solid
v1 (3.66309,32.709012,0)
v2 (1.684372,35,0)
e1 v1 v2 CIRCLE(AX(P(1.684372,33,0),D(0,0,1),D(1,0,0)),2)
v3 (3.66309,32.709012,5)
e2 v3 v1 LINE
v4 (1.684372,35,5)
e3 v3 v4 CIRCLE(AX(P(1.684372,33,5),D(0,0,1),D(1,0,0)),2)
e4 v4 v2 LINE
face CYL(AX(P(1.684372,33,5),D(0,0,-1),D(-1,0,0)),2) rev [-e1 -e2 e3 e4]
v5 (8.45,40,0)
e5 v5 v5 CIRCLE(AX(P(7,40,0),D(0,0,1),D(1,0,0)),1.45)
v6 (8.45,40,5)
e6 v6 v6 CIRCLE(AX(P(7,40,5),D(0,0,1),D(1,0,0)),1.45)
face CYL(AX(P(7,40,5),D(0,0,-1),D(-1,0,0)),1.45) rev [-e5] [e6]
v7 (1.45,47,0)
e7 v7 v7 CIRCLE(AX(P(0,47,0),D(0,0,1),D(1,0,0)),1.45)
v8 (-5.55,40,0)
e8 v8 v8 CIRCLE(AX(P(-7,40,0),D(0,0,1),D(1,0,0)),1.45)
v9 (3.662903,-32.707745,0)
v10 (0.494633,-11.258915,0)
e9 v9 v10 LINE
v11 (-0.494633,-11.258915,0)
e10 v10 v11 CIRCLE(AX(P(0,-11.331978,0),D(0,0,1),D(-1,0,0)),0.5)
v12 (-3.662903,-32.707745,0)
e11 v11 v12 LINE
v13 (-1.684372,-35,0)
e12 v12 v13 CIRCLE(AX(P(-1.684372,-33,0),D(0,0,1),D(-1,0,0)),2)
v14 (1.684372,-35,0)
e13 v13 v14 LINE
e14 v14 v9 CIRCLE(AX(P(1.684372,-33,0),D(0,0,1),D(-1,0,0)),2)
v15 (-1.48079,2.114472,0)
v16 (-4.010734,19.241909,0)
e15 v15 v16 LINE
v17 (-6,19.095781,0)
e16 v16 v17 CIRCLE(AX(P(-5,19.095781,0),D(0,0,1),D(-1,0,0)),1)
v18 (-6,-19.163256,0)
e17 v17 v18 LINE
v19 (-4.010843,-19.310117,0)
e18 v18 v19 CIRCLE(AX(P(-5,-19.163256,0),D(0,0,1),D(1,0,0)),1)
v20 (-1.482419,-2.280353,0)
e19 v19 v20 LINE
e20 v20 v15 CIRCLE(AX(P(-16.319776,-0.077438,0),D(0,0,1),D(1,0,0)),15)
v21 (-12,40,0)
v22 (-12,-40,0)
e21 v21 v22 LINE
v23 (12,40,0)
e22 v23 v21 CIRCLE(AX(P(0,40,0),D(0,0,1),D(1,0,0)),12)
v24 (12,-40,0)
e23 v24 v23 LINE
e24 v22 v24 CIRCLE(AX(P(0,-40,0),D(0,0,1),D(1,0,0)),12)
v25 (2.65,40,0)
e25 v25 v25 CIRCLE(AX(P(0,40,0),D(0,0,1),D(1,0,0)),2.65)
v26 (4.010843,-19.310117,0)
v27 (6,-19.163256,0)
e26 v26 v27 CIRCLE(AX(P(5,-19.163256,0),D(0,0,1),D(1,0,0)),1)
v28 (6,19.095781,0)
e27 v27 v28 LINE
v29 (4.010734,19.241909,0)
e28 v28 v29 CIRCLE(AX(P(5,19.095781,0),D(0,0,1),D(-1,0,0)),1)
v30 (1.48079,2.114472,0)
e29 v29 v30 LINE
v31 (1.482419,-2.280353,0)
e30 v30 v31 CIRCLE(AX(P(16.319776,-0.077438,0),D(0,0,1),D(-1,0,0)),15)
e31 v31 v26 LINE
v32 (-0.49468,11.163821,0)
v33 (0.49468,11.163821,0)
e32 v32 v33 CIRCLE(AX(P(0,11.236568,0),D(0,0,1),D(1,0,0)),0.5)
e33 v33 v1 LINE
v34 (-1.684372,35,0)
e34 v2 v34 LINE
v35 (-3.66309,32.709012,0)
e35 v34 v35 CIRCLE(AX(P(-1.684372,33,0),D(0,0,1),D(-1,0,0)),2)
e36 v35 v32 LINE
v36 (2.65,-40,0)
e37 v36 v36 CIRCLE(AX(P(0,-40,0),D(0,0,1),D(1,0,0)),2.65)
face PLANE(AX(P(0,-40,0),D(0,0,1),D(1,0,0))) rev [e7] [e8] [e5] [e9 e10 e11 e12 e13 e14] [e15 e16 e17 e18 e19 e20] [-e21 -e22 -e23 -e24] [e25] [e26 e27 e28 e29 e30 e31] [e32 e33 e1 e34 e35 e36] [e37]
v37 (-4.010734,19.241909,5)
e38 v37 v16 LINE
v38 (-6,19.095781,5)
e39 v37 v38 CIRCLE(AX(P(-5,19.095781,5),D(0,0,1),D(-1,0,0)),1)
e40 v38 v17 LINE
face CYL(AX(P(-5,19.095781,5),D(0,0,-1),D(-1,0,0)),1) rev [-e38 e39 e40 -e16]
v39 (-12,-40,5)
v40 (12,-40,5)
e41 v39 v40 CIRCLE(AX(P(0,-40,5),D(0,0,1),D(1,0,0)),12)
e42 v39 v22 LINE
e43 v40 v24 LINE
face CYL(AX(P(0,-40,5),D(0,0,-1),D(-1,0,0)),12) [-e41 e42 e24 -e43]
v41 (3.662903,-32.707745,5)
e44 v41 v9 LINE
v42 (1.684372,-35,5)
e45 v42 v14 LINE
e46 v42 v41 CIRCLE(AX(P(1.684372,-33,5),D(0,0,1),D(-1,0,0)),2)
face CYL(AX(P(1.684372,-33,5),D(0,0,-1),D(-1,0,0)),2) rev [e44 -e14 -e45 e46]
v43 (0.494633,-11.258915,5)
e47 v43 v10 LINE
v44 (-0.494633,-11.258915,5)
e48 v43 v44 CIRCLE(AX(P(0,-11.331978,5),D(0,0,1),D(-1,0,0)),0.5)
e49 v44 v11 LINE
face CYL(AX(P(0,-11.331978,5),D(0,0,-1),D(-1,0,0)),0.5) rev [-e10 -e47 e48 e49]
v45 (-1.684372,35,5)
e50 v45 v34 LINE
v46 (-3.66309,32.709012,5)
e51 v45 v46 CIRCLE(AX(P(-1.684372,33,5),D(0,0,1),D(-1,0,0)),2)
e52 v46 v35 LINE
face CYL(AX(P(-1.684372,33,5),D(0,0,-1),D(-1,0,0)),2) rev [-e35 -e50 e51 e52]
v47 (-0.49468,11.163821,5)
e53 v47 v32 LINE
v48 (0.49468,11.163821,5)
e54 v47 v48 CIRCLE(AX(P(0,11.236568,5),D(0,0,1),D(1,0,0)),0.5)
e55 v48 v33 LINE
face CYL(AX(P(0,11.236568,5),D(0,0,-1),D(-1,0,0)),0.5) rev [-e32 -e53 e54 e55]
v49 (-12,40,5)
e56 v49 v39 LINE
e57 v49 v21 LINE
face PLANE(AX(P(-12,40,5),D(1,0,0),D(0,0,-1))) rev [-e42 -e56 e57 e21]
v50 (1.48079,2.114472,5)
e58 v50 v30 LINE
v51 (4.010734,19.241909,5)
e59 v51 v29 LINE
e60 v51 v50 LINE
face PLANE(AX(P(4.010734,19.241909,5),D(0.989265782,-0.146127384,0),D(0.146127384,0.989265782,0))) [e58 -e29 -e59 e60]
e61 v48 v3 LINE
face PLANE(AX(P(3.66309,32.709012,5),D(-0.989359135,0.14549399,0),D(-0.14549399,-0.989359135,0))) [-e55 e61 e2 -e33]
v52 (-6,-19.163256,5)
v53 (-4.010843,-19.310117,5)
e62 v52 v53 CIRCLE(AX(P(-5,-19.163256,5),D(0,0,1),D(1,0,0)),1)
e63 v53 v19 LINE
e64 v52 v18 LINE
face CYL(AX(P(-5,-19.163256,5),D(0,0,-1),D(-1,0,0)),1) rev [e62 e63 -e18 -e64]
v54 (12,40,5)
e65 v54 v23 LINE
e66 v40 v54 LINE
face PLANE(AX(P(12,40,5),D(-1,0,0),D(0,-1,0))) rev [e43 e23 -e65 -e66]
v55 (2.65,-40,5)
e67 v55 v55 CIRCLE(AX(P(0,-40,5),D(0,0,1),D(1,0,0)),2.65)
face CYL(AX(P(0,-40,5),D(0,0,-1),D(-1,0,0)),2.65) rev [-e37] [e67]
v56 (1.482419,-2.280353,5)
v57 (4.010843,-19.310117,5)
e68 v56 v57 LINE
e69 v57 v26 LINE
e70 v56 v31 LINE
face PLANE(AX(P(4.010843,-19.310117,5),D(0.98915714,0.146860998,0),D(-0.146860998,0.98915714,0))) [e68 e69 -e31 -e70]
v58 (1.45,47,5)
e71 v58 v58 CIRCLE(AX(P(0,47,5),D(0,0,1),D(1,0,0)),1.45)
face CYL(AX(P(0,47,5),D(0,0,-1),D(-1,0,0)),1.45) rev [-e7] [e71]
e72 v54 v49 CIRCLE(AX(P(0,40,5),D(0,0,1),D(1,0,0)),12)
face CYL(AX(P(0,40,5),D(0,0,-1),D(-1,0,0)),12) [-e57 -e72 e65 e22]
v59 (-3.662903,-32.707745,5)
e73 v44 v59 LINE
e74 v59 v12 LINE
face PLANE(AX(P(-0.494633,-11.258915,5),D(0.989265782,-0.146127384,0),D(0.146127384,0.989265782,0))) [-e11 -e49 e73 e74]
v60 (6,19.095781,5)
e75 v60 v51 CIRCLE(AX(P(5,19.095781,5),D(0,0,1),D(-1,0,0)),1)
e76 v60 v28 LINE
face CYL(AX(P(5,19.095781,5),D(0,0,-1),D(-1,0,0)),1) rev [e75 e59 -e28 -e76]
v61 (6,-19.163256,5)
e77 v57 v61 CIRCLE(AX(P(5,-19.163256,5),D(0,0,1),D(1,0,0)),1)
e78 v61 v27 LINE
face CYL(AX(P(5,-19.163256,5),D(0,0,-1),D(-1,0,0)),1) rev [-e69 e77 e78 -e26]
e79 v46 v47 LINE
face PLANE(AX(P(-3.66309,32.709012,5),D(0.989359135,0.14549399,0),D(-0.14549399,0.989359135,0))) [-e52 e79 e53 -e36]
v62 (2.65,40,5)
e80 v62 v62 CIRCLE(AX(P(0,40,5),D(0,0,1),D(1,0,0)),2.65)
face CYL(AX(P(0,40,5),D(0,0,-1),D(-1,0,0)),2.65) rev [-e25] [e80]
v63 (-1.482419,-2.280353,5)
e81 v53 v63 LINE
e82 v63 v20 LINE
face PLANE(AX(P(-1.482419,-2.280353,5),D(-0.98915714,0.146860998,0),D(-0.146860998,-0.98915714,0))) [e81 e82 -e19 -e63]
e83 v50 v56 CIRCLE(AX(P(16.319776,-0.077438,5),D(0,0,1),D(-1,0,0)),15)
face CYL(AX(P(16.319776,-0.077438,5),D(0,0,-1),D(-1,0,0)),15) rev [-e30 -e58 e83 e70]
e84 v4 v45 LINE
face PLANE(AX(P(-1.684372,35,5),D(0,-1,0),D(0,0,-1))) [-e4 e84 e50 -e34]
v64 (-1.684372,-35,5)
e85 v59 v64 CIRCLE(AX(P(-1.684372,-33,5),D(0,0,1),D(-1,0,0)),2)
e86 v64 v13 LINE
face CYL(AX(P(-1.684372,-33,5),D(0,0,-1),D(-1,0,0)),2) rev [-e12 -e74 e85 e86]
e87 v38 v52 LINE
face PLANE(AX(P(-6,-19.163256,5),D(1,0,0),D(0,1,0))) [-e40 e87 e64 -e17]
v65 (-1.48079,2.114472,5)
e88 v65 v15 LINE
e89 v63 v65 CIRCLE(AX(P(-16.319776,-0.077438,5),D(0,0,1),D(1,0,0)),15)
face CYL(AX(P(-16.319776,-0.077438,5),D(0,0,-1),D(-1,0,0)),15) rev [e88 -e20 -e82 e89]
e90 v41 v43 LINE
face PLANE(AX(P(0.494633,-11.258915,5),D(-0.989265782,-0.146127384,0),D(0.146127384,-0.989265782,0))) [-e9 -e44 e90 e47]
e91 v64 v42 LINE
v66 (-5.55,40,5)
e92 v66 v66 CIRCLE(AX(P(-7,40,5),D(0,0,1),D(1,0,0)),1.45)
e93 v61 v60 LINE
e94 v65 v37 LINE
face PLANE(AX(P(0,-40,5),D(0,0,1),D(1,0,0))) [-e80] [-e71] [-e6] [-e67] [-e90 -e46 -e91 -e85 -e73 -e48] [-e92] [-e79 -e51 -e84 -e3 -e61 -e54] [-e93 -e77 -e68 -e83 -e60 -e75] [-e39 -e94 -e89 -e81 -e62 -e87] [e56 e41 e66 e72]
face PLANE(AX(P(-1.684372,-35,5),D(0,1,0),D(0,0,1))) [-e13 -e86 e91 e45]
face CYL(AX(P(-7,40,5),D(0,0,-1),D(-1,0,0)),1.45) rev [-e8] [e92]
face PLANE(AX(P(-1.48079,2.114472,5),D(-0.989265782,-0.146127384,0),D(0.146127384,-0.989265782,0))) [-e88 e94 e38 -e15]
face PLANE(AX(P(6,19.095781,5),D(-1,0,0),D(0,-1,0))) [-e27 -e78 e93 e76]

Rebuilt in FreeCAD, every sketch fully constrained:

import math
import FreeCAD as App
import Part
import Sketcher
from FreeCAD import Vector

doc = App.newDocument("Part")
body = doc.addObject("PartDesign::Body", "Body")

# Sketch on XY plane
sketch1 = body.newObject("Sketcher::SketchObject", "Sketch")
sketch1.AttachmentSupport = (doc.getObject("XY_Plane"), [""])
sketch1.MapMode = "FlatFace"
sketch1.addGeometry([
    Part.LineSegment(Vector(-12, 40, 0), Vector(-12, -40, 0)),  # 0
    Part.ArcOfCircle(Part.Circle(Vector(0, -40, 0), Vector(0, 0, 1), 12), math.radians(180), math.radians(360)),  # 1
    Part.LineSegment(Vector(12, -40, 0), Vector(12, 40, 0)),  # 2
    Part.ArcOfCircle(Part.Circle(Vector(0, 40, 0), Vector(0, 0, 1), 12), math.radians(0), math.radians(180)),  # 3
    Part.ArcOfCircle(Part.Circle(Vector(-5, -19.2, 0), Vector(0, 0, 1), 1), math.radians(180), math.radians(352)),  # 4
    Part.LineSegment(Vector(-6, -19.2, 0), Vector(-6, 19.1, 0)),  # 5
    Part.ArcOfCircle(Part.Circle(Vector(-5, 19.1, 0), Vector(0, 0, 1), 1), math.radians(8), math.radians(180)),  # 6
    Part.LineSegment(Vector(-4, 19.2, 0), Vector(-1.5, 2.1, 0)),  # 7
    Part.ArcOfCircle(Part.Circle(Vector(-16.3, -0.1, 0), Vector(0, 0, 1), 15), math.radians(-8.45), math.radians(8.4)),  # 8
    Part.LineSegment(Vector(-1.5, -2.3, 0), Vector(-4, -19.3, 0)),  # 9
    Part.Circle(Vector(0, -40, 0), Vector(0, 0, 1), 2.6),  # 10
    Part.LineSegment(Vector(1.7, -35, 0), Vector(-1.7, -35, 0)),  # 11
    Part.ArcOfCircle(Part.Circle(Vector(-1.7, -33, 0), Vector(0, 0, 1), 2), math.radians(172), math.radians(270)),  # 12
    Part.LineSegment(Vector(-3.7, -32.7, 0), Vector(-0.5, -11.3, 0)),  # 13
    Part.ArcOfCircle(Part.Circle(Vector(0, -11.3, 0), Vector(0, 0, 1), 0.5), math.radians(8), math.radians(172)),  # 14
    Part.LineSegment(Vector(0.5, -11.3, 0), Vector(3.7, -32.7, 0)),  # 15
    Part.ArcOfCircle(Part.Circle(Vector(1.7, -33, 0), Vector(0, 0, 1), 2), math.radians(-90), math.radians(8)),  # 16
    Part.ArcOfCircle(Part.Circle(Vector(5, 19.1, 0), Vector(0, 0, 1), 1), math.radians(0), math.radians(172)),  # 17
    Part.LineSegment(Vector(6, 19.1, 0), Vector(6, -19.2, 0)),  # 18
    Part.ArcOfCircle(Part.Circle(Vector(5, -19.2, 0), Vector(0, 0, 1), 1), math.radians(-172), math.radians(0)),  # 19
    Part.LineSegment(Vector(4, -19.3, 0), Vector(1.5, -2.3, 0)),  # 20
    Part.ArcOfCircle(Part.Circle(Vector(16.3, -0.1, 0), Vector(0, 0, 1), 15), math.radians(171.6), math.radians(188.45)),  # 21
    Part.LineSegment(Vector(1.5, 2.1, 0), Vector(4, 19.2, 0)),  # 22
    Part.Circle(Vector(-7, 40, 0), Vector(0, 0, 1), 1.4),  # 23
    Part.ArcOfCircle(Part.Circle(Vector(-1.7, 33, 0), Vector(0, 0, 1), 2), math.radians(90), math.radians(188)),  # 24
    Part.LineSegment(Vector(-1.7, 35, 0), Vector(1.7, 35, 0)),  # 25
    Part.ArcOfCircle(Part.Circle(Vector(1.7, 33, 0), Vector(0, 0, 1), 2), math.radians(-8), math.radians(90)),  # 26
    Part.LineSegment(Vector(3.7, 32.7, 0), Vector(0.5, 11.2, 0)),  # 27
    Part.ArcOfCircle(Part.Circle(Vector(0, 11.2, 0), Vector(0, 0, 1), 0.5), math.radians(-172), math.radians(-8)),  # 28
    Part.LineSegment(Vector(-0.5, 11.2, 0), Vector(-3.7, 32.7, 0)),  # 29
    Part.Circle(Vector(0, 40, 0), Vector(0, 0, 1), 2.6),  # 30
    Part.Circle(Vector(0, 47, 0), Vector(0, 0, 1), 1.4),  # 31
    Part.Circle(Vector(7, 40, 0), Vector(0, 0, 1), 1.4),  # 32
], False)
sketch1.addConstraint([
    Sketcher.Constraint("Tangent", 0, 2, 1, 1),
    Sketcher.Constraint("Tangent", 1, 2, 2, 1),
    Sketcher.Constraint("Tangent", 2, 2, 3, 1),
    Sketcher.Constraint("Tangent", 3, 2, 0, 1),
    Sketcher.Constraint("Tangent", 4, 1, 5, 1),
    Sketcher.Constraint("Tangent", 5, 2, 6, 2),
    Sketcher.Constraint("Tangent", 6, 1, 7, 1),
    Sketcher.Constraint("Tangent", 7, 2, 8, 2),
    Sketcher.Constraint("Tangent", 8, 1, 9, 1),
    Sketcher.Constraint("Tangent", 9, 2, 4, 2),
    Sketcher.Constraint("Tangent", 11, 2, 12, 2),
    Sketcher.Constraint("Tangent", 12, 1, 13, 1),
    Sketcher.Constraint("Tangent", 13, 2, 14, 2),
    Sketcher.Constraint("Tangent", 14, 1, 15, 1),
    Sketcher.Constraint("Tangent", 15, 2, 16, 2),
    Sketcher.Constraint("Tangent", 16, 1, 11, 1),
    Sketcher.Constraint("Tangent", 17, 1, 18, 1),
    Sketcher.Constraint("Tangent", 18, 2, 19, 2),
    Sketcher.Constraint("Tangent", 19, 1, 20, 1),
    Sketcher.Constraint("Tangent", 20, 2, 21, 2),
    Sketcher.Constraint("Tangent", 21, 1, 22, 1),
    Sketcher.Constraint("Tangent", 22, 2, 17, 2),
    Sketcher.Constraint("Tangent", 24, 1, 25, 1),
    Sketcher.Constraint("Tangent", 25, 2, 26, 2),
    Sketcher.Constraint("Tangent", 26, 1, 27, 1),
    Sketcher.Constraint("Tangent", 27, 2, 28, 2),
    Sketcher.Constraint("Tangent", 28, 1, 29, 1),
    Sketcher.Constraint("Tangent", 29, 2, 24, 2),
    Sketcher.Constraint("Vertical", 0),
    Sketcher.Constraint("Vertical", 2),
    Sketcher.Constraint("Vertical", 5),
    Sketcher.Constraint("Horizontal", 11),
    Sketcher.Constraint("Vertical", 18),
    Sketcher.Constraint("Horizontal", 25),
    Sketcher.Constraint("Coincident", 10, 3, 1, 3),
    Sketcher.Constraint("Coincident", 30, 3, 3, 3),
    Sketcher.Constraint("Equal", 4, 6),
    Sketcher.Constraint("Equal", 12, 16),
    Sketcher.Constraint("Equal", 6, 17),
    Sketcher.Constraint("Equal", 17, 19),
    Sketcher.Constraint("Equal", 8, 21),
    Sketcher.Constraint("Equal", 16, 24),
    Sketcher.Constraint("Equal", 24, 26),
    Sketcher.Constraint("Equal", 14, 28),
    Sketcher.Constraint("Equal", 10, 30),
    Sketcher.Constraint("Equal", 23, 31),
    Sketcher.Constraint("Equal", 31, 32),
    Sketcher.Constraint("Symmetric", 1, 3, 3, 3, -1, 1),
    Sketcher.Constraint("Symmetric", 16, 3, 24, 3, -1, 1),
    Sketcher.Constraint("Symmetric", 6, 3, 17, 3, -2),
    Sketcher.Constraint("Symmetric", 8, 3, 21, 3, -2),
    Sketcher.Constraint("Symmetric", 23, 3, 32, 3, -2),
    Sketcher.Constraint("Symmetric", 13, 2, 14, 1, -2),
    Sketcher.Constraint("Symmetric", 27, 2, 28, 1, -2),
    Sketcher.Constraint("PointOnObject", 31, 3, -2),
    Sketcher.Constraint("Parallel", 7, 15),
    Sketcher.Constraint("Horizontal", 4, 3, 19, 3),
    Sketcher.Constraint("Horizontal", 3, 3, 23, 3),
    Sketcher.Constraint("Radius", 1, 12.0),
    Sketcher.Constraint("Radius", 4, 1.0),
    Sketcher.Constraint("Radius", 8, 15.0),
    Sketcher.Constraint("Radius", 12, 2.0),
    Sketcher.Constraint("Diameter", 10, 5.3),
    Sketcher.Constraint("Diameter", 23, 2.9),
    Sketcher.Constraint("Radius", 14, 0.5),
    Sketcher.Constraint("DistanceY", 0, 2, 0, 1, 80.0),
    Sketcher.Constraint("DistanceX", 4, 3, -1, 1, 5.0),
    Sketcher.Constraint("DistanceY", 12, 3, -1, 1, 33.0),
    Sketcher.Constraint("DistanceX", 23, 3, -1, 1, 7.0),
    Sketcher.Constraint("DistanceY", -1, 1, 31, 3, 47.0),
    Sketcher.Constraint("Distance", 7, 17.313281),
    Sketcher.Constraint("Distance", 9, 17.216439),
    Sketcher.Constraint("DistanceX", 11, 2, 11, 1, 3.368743),
    Sketcher.Constraint("DistanceY", 5, 1, 5, 2, 38.259038),
    Sketcher.Constraint("DistanceY", -1, 1, 6, 3, 19.095781),
    Sketcher.Constraint("DistanceY", -1, 1, 28, 3, 11.236568),
])
pad1 = body.newObject("PartDesign::Pad", "Pad")
pad1.Profile = sketch1
pad1.Length = 5

doc.recompute()
